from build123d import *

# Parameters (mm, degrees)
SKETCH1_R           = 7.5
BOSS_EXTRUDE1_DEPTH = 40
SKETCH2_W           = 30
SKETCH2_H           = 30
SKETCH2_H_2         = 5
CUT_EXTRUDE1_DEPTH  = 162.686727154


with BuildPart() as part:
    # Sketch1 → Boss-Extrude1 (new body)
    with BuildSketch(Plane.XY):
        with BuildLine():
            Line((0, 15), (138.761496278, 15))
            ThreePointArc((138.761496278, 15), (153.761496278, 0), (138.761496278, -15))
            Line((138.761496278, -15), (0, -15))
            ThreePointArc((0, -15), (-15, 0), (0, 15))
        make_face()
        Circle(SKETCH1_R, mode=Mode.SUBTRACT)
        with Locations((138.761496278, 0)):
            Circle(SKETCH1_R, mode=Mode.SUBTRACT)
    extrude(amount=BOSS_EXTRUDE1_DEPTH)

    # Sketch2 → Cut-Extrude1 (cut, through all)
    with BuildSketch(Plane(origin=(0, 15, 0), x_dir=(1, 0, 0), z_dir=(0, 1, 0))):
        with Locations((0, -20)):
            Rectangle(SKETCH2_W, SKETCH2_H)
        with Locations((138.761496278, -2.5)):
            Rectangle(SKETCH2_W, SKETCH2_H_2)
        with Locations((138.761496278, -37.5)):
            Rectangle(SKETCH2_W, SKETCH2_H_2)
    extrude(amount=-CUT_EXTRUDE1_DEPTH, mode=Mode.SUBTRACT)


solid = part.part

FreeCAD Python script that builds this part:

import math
import FreeCAD as App
import Part
import Sketcher
Q = App.Units.Quantity


def add_polygon(sketch, points):
    """Adds a closed chain of lines whose ends are joined by coincident constraints."""
    first, n = sketch.GeometryCount, len(points)
    for a, b in zip(points, points[1:] + points[:1]):
        sketch.addGeometry(Part.LineSegment(App.Vector(*a, 0), App.Vector(*b, 0)), False)
    for i in range(n):
        sketch.addConstraint(Sketcher.Constraint("Coincident", first + i, 2, first + (i + 1) % n, 1))

doc = App.newDocument("Part")
body = doc.addObject("PartDesign::Body", "Body")

sketch1 = body.newObject("Sketcher::SketchObject", "Sketch")
sketch1.AttachmentSupport = (doc.getObject("XY_Plane"), [""])
sketch1.MapMode = "FlatFace"
sketch1.addGeometry([
    Part.LineSegment(App.Vector(139, 15, 0), App.Vector(0, 15, 0)),
    Part.ArcOfCircle(Part.Circle(App.Vector(0, 0, 0), App.Vector(0, 0, 1), 15), math.radians(90), math.radians(270)),
    Part.LineSegment(App.Vector(0, -15, 0), App.Vector(139, -15, 0)),
    Part.ArcOfCircle(Part.Circle(App.Vector(139, 0, 0), App.Vector(0, 0, 1), 15), math.radians(-90), math.radians(90)),
    Part.Circle(App.Vector(139, 0, 0), App.Vector(0, 0, 1), 8),
    Part.Circle(App.Vector(0, 0, 0), App.Vector(0, 0, 1), 8),
], False)
sketch1.addConstraint([
    Sketcher.Constraint("Tangent", 0, 2, 1, 1),
    Sketcher.Constraint("Tangent", 1, 2, 2, 1),
    Sketcher.Constraint("Tangent", 2, 2, 3, 1),
    Sketcher.Constraint("Tangent", 3, 2, 0, 1),
    Sketcher.Constraint("Horizontal", 0),
    Sketcher.Constraint("Horizontal", 2),
    Sketcher.Constraint("Coincident", 1, 3, -1, 1),
    Sketcher.Constraint("Coincident", 5, 3, -1, 1),
    Sketcher.Constraint("Coincident", 4, 3, 3, 3),
    Sketcher.Constraint("Equal", 4, 5),
    Sketcher.Constraint("Diameter", 4, Q("15 mm")),
    Sketcher.Constraint("Radius", 1, Q("15 mm")),
    Sketcher.Constraint("DistanceX", 0, 2, 0, 1, Q("138.761496 mm")),
])
pad1 = body.newObject("PartDesign::Pad", "Pad")
pad1.Profile = sketch1
pad1.Length = 40

sketch2 = body.newObject("Sketcher::SketchObject", "Sketch001")
sketch2.AttachmentSupport = (doc.getObject("XZ_Plane"), [""])
sketch2.MapMode = "FlatFace"
sketch2.AttachmentOffset = App.Placement(App.Vector(0, 0, -15), App.Rotation())
add_polygon(sketch2, [(-15, 5), (-15, 35), (15, 35), (15, 5)])
add_polygon(sketch2, [(124, 0), (124, 5), (154, 5), (154, 0)])
add_polygon(sketch2, [(124, 35), (124, 40), (154, 40), (154, 35)])
sketch2.addConstraint([
    Sketcher.Constraint("Vertical", 0),
    Sketcher.Constraint("Horizontal", 1),
    Sketcher.Constraint("Vertical", 2),
    Sketcher.Constraint("Horizontal", 3),
    Sketcher.Constraint("Vertical", 4),
    Sketcher.Constraint("Horizontal", 5),
    Sketcher.Constraint("Vertical", 6),
    Sketcher.Constraint("Horizontal", 7),
    Sketcher.Constraint("Vertical", 8),
    Sketcher.Constraint("Horizontal", 9),
    Sketcher.Constraint("Vertical", 10),
    Sketcher.Constraint("Horizontal", 11),
    Sketcher.Constraint("PointOnObject", 6, 2, -1),
    Sketcher.Constraint("Horizontal", 3, 2, 4, 2),
    Sketcher.Constraint("Horizontal", 1, 2, 10, 2),
    Sketcher.Constraint("Vertical", 7, 2, 8, 2),
    Sketcher.Constraint("Vertical", 6, 2, 9, 2),
    Sketcher.Constraint("Equal", 3, 5),
    Sketcher.Constraint("Equal", 11, 0),
    Sketcher.Constraint("Equal", 6, 8),
    Sketcher.Constraint("DistanceX", 1, 1, 1, 2, Q("30 mm")),
    Sketcher.Constraint("DistanceY", 4, 1, 4, 2, Q("5 mm")),
    Sketcher.Constraint("DistanceX", 0, 2, -1, 1, Q("15 mm")),
    Sketcher.Constraint("DistanceX", -1, 1, 4, 2, Q("123.761496 mm")),
])
pocket1 = body.newObject("PartDesign::Pocket", "Pocket")
pocket1.Profile = sketch2
pocket1.Type = "ThroughAll"
pocket1.Reversed = True

doc.recompute()
